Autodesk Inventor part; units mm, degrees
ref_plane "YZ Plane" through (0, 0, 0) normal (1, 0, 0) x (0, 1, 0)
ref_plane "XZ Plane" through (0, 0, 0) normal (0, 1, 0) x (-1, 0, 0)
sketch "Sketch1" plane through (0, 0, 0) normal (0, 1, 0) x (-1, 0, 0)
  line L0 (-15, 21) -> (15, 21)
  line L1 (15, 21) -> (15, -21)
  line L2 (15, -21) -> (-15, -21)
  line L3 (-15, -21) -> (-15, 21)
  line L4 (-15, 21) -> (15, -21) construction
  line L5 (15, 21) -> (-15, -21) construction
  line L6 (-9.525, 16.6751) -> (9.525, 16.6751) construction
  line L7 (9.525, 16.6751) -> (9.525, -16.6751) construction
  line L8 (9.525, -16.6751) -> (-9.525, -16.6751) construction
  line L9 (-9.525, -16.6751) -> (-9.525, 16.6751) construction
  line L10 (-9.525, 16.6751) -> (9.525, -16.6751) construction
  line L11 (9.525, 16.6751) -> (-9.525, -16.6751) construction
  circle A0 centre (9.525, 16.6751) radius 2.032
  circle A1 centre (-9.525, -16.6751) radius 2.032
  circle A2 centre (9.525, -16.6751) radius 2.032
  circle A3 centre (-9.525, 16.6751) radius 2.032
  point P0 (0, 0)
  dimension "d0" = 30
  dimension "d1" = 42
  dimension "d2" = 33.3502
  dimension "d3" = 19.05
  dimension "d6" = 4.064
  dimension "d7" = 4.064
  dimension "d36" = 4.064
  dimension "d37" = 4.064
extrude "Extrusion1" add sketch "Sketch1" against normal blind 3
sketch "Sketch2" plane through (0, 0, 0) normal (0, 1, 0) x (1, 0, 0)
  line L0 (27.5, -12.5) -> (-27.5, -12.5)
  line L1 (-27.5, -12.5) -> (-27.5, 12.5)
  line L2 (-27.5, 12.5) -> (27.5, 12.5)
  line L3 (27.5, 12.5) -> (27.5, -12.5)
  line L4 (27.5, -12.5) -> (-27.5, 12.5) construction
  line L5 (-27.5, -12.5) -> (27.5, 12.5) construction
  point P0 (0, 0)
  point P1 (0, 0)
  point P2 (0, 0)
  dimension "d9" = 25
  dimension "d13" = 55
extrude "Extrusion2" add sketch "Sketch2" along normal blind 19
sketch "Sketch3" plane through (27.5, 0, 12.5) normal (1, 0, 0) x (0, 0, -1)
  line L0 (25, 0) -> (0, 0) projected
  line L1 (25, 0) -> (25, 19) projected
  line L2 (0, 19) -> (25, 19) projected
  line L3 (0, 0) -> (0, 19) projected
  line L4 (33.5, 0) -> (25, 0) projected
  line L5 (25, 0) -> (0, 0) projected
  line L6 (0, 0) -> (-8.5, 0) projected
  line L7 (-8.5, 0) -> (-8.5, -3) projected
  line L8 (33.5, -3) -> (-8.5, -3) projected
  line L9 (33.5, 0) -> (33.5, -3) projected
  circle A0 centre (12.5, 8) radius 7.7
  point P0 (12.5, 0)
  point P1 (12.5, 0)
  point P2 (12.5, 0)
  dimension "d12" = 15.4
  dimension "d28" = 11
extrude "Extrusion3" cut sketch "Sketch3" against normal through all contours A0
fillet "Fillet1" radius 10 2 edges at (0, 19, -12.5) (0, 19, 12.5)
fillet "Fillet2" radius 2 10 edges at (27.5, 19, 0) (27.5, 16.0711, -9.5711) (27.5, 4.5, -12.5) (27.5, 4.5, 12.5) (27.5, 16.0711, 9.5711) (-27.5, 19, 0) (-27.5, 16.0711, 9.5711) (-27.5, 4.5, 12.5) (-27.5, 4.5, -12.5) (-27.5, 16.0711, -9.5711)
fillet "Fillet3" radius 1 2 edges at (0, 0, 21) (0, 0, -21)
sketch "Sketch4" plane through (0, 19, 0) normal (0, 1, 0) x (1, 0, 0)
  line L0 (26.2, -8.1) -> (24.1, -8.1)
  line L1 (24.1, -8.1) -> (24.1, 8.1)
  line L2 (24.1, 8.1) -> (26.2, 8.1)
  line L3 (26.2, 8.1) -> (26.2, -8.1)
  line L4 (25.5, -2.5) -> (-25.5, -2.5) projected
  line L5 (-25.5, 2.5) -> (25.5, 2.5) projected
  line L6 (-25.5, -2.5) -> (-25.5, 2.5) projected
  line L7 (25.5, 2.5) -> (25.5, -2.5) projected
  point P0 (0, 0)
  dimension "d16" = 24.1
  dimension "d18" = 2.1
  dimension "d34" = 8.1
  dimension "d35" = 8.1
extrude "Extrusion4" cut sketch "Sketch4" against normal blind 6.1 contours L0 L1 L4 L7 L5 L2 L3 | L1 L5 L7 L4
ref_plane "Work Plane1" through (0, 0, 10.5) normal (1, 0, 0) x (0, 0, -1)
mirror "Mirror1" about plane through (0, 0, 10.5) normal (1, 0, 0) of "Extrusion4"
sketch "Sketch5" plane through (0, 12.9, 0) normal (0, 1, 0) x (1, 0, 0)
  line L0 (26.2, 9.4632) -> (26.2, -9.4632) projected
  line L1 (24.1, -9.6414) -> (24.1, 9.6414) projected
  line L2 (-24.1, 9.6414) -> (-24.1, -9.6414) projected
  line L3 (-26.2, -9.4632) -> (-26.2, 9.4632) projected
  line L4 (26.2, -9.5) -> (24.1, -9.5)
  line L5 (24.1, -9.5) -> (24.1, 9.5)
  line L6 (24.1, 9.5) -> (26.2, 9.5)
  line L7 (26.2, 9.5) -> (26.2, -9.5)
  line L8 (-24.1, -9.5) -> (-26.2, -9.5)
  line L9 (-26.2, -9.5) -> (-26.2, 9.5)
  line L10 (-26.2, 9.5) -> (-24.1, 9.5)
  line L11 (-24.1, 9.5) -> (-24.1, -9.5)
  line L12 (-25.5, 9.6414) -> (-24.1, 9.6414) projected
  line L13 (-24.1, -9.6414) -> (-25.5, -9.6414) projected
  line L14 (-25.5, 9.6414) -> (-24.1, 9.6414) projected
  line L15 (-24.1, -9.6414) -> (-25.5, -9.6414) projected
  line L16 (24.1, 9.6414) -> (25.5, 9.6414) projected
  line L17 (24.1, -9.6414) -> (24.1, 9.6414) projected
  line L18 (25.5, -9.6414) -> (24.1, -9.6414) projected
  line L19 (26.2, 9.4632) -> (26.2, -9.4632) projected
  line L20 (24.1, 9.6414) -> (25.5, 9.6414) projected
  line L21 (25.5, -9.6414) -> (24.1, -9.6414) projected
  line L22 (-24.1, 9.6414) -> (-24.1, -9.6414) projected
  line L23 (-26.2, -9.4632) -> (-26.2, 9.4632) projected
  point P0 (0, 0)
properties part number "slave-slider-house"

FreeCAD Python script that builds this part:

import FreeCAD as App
import Part
import Sketcher
Q = App.Units.Quantity


def edges_at(feature, points):
    """Names of the edges that pass closest to the given points."""
    edges = feature.Shape.Edges
    near = lambda p: min(range(len(edges)), key=lambda i: edges[i].distToShape(Part.Vertex(*p))[0])
    return sorted({f"Edge{near(p) + 1}" for p in points})

doc = App.newDocument("Part")
body = doc.addObject("PartDesign::Body", "Body")

sketch1 = body.newObject("Sketcher::SketchObject", "Sketch")
sketch1.AttachmentSupport = (doc.getObject("XZ_Plane"), [""])
sketch1.MapMode = "FlatFace"
sketch1.addGeometry([
    Part.LineSegment(App.Vector(-15, 21, 0), App.Vector(15, 21, 0)),
    Part.LineSegment(App.Vector(15, 21, 0), App.Vector(15, -21, 0)),
    Part.LineSegment(App.Vector(15, -21, 0), App.Vector(-15, -21, 0)),
    Part.LineSegment(App.Vector(-15, -21, 0), App.Vector(-15, 21, 0)),
    Part.Circle(App.Vector(9.5, -16.7, 0), App.Vector(0, 0, 1), 2),
    Part.Circle(App.Vector(-9.5, -16.7, 0), App.Vector(0, 0, 1), 2),
    Part.Circle(App.Vector(9.5, 16.7, 0), App.Vector(0, 0, 1), 2),
    Part.Circle(App.Vector(-9.5, 16.7, 0), App.Vector(0, 0, 1), 2),
], False)
sketch1.addConstraint([
    Sketcher.Constraint("Coincident", 0, 2, 1, 1),
    Sketcher.Constraint("Coincident", 1, 2, 2, 1),
    Sketcher.Constraint("Coincident", 2, 2, 3, 1),
    Sketcher.Constraint("Coincident", 3, 2, 0, 1),
    Sketcher.Constraint("Horizontal", 0),
    Sketcher.Constraint("Vertical", 1),
    Sketcher.Constraint("Horizontal", 2),
    Sketcher.Constraint("Vertical", 3),
    Sketcher.Constraint("Equal", 4, 5),
    Sketcher.Constraint("Equal", 5, 6),
    Sketcher.Constraint("Equal", 6, 7),
    Sketcher.Constraint("Symmetric", 5, 3, 6, 3, -1, 1),
    Sketcher.Constraint("Symmetric", 4, 3, 7, 3, -1, 1),
    Sketcher.Constraint("Symmetric", 0, 2, 2, 2, -1, 1),
    Sketcher.Constraint("Symmetric", 4, 3, 5, 3, -2),
    Sketcher.Constraint("DistanceX", 0, 1, 0, 2, Q("30 mm")),
    Sketcher.Constraint("DistanceY", 1, 2, 1, 1, Q("42 mm")),
    Sketcher.Constraint("Diameter", 4, Q("4.064 mm")),
    Sketcher.Constraint("DistanceX", 5, 3, 4, 3, Q("19.05 mm")),
    Sketcher.Constraint("DistanceY", 4, 3, 6, 3, Q("33.3502 mm")),
])
pad1 = body.newObject("PartDesign::Pad", "Pad")
pad1.Profile = sketch1
pad1.Length = 3

sketch2 = body.newObject("Sketcher::SketchObject", "Sketch001")
sketch2.AttachmentSupport = (doc.getObject("XZ_Plane"), [""])
sketch2.MapMode = "FlatFace"
sketch2.addGeometry([
    Part.LineSegment(App.Vector(-28, 12, 0), App.Vector(28, 12, 0)),
    Part.LineSegment(App.Vector(28, 12, 0), App.Vector(28, -12, 0)),
    Part.LineSegment(App.Vector(28, -12, 0), App.Vector(-28, -12, 0)),
    Part.LineSegment(App.Vector(-28, -12, 0), App.Vector(-28, 12, 0)),
], False)
sketch2.addConstraint([
    Sketcher.Constraint("Coincident", 0, 2, 1, 1),
    Sketcher.Constraint("Coincident", 1, 2, 2, 1),
    Sketcher.Constraint("Coincident", 2, 2, 3, 1),
    Sketcher.Constraint("Coincident", 3, 2, 0, 1),
    Sketcher.Constraint("Horizontal", 0),
    Sketcher.Constraint("Vertical", 1),
    Sketcher.Constraint("Horizontal", 2),
    Sketcher.Constraint("Vertical", 3),
    Sketcher.Constraint("Symmetric", 0, 2, 2, 2, -1, 1),
    Sketcher.Constraint("DistanceX", 0, 1, 0, 2, Q("55 mm")),
    Sketcher.Constraint("DistanceY", 1, 2, 1, 1, Q("25 mm")),
])
pad2 = body.newObject("PartDesign::Pad", "Pad001")
pad2.Profile = sketch2
pad2.Length = 19
pad2.Reversed = True

sketch3 = body.newObject("Sketcher::SketchObject", "Sketch002")
sketch3.AttachmentSupport = (doc.getObject("YZ_Plane"), [""])
sketch3.MapMode = "FlatFace"
sketch3.AttachmentOffset = App.Placement(App.Vector(0, 0, 27.5), App.Rotation())
sketch3.addGeometry(Part.Circle(App.Vector(8, 0, 0), App.Vector(0, 0, 1), 8), False)
sketch3.addConstraint([
    Sketcher.Constraint("PointOnObject", 0, 3, -1),
    Sketcher.Constraint("Diameter", 0, Q("15.4 mm")),
    Sketcher.Constraint("DistanceX", -1, 1, 0, 3, Q("8 mm")),
])
pocket1 = body.newObject("PartDesign::Pocket", "Pocket")
pocket1.Profile = sketch3
pocket1.Type = "ThroughAll"
doc.recompute()

fillet = body.newObject("PartDesign::Fillet", "Fillet")
fillet.Base = (pocket1, edges_at(pocket1, [(0, 19, -12.5), (0, 19, 12.5)]))
fillet.Radius = 10
doc.recompute()

fillet2 = body.newObject("PartDesign::Fillet", "Fillet001")
fillet2.Base = (fillet, edges_at(fillet, [
    (27.5, 19, 0),
    (27.5, 16.071, -9.571),
    (27.5, 4.5, -12.5),
    (27.5, 4.5, 12.5),
    (27.5, 16.071, 9.571),
    (-27.5, 19, 0),
    (-27.5, 16.071, 9.571),
    (-27.5, 4.5, 12.5),
    (-27.5, 4.5, -12.5),
    (-27.5, 16.071, -9.571),
]))
fillet2.Radius = 2
doc.recompute()

fillet3 = body.newObject("PartDesign::Fillet", "Fillet002")
fillet3.Base = (fillet2, edges_at(fillet2, [(0, 0, 21), (0, 0, -21)]))
fillet3.Radius = 1

sketch4 = body.newObject("Sketcher::SketchObject", "Sketch003")
sketch4.AttachmentSupport = (doc.getObject("XZ_Plane"), [""])
sketch4.MapMode = "FlatFace"
sketch4.AttachmentOffset = App.Placement(App.Vector(0, 0, -19), App.Rotation())
sketch4.addGeometry([
    Part.LineSegment(App.Vector(24.1, 8.1, 0), App.Vector(26.2, 8.1, 0)),
    Part.LineSegment(App.Vector(26.2, 8.1, 0), App.Vector(26.2, -8.1, 0)),
    Part.LineSegment(App.Vector(26.2, -8.1, 0), App.Vector(24.1, -8.1, 0)),
    Part.LineSegment(App.Vector(24.1, -8.1, 0), App.Vector(24.1, 8.1, 0)),
], False)
sketch4.addConstraint([
    Sketcher.Constraint("Coincident", 0, 2, 1, 1),
    Sketcher.Constraint("Coincident", 1, 2, 2, 1),
    Sketcher.Constraint("Coincident", 2, 2, 3, 1),
    Sketcher.Constraint("Coincident", 3, 2, 0, 1),
    Sketcher.Constraint("Horizontal", 0),
    Sketcher.Constraint("Vertical", 1),
    Sketcher.Constraint("Horizontal", 2),
    Sketcher.Constraint("Vertical", 3),
    Sketcher.Constraint("DistanceX", 0, 1, 0, 2, Q("2.1 mm")),
    Sketcher.Constraint("DistanceY", -1, 1, 0, 2, Q("8.1 mm")),
    Sketcher.Constraint("DistanceY", 1, 2, -1, 1, Q("8.1 mm")),
    Sketcher.Constraint("DistanceX", -1, 1, 2, 2, Q("24.1 mm")),
])
pocket2 = body.newObject("PartDesign::Pocket", "Pocket001")
pocket2.Profile = sketch4
pocket2.Length = 6.1
pocket2.Reversed = True
doc.recompute()

mirrored = body.newObject("PartDesign::Mirrored", "Mirrored")
mirrored.Originals = [pocket2]
mirrored.MirrorPlane = (doc.getObject("YZ_Plane"), [""])
body.Tip = mirrored

doc.recompute()
